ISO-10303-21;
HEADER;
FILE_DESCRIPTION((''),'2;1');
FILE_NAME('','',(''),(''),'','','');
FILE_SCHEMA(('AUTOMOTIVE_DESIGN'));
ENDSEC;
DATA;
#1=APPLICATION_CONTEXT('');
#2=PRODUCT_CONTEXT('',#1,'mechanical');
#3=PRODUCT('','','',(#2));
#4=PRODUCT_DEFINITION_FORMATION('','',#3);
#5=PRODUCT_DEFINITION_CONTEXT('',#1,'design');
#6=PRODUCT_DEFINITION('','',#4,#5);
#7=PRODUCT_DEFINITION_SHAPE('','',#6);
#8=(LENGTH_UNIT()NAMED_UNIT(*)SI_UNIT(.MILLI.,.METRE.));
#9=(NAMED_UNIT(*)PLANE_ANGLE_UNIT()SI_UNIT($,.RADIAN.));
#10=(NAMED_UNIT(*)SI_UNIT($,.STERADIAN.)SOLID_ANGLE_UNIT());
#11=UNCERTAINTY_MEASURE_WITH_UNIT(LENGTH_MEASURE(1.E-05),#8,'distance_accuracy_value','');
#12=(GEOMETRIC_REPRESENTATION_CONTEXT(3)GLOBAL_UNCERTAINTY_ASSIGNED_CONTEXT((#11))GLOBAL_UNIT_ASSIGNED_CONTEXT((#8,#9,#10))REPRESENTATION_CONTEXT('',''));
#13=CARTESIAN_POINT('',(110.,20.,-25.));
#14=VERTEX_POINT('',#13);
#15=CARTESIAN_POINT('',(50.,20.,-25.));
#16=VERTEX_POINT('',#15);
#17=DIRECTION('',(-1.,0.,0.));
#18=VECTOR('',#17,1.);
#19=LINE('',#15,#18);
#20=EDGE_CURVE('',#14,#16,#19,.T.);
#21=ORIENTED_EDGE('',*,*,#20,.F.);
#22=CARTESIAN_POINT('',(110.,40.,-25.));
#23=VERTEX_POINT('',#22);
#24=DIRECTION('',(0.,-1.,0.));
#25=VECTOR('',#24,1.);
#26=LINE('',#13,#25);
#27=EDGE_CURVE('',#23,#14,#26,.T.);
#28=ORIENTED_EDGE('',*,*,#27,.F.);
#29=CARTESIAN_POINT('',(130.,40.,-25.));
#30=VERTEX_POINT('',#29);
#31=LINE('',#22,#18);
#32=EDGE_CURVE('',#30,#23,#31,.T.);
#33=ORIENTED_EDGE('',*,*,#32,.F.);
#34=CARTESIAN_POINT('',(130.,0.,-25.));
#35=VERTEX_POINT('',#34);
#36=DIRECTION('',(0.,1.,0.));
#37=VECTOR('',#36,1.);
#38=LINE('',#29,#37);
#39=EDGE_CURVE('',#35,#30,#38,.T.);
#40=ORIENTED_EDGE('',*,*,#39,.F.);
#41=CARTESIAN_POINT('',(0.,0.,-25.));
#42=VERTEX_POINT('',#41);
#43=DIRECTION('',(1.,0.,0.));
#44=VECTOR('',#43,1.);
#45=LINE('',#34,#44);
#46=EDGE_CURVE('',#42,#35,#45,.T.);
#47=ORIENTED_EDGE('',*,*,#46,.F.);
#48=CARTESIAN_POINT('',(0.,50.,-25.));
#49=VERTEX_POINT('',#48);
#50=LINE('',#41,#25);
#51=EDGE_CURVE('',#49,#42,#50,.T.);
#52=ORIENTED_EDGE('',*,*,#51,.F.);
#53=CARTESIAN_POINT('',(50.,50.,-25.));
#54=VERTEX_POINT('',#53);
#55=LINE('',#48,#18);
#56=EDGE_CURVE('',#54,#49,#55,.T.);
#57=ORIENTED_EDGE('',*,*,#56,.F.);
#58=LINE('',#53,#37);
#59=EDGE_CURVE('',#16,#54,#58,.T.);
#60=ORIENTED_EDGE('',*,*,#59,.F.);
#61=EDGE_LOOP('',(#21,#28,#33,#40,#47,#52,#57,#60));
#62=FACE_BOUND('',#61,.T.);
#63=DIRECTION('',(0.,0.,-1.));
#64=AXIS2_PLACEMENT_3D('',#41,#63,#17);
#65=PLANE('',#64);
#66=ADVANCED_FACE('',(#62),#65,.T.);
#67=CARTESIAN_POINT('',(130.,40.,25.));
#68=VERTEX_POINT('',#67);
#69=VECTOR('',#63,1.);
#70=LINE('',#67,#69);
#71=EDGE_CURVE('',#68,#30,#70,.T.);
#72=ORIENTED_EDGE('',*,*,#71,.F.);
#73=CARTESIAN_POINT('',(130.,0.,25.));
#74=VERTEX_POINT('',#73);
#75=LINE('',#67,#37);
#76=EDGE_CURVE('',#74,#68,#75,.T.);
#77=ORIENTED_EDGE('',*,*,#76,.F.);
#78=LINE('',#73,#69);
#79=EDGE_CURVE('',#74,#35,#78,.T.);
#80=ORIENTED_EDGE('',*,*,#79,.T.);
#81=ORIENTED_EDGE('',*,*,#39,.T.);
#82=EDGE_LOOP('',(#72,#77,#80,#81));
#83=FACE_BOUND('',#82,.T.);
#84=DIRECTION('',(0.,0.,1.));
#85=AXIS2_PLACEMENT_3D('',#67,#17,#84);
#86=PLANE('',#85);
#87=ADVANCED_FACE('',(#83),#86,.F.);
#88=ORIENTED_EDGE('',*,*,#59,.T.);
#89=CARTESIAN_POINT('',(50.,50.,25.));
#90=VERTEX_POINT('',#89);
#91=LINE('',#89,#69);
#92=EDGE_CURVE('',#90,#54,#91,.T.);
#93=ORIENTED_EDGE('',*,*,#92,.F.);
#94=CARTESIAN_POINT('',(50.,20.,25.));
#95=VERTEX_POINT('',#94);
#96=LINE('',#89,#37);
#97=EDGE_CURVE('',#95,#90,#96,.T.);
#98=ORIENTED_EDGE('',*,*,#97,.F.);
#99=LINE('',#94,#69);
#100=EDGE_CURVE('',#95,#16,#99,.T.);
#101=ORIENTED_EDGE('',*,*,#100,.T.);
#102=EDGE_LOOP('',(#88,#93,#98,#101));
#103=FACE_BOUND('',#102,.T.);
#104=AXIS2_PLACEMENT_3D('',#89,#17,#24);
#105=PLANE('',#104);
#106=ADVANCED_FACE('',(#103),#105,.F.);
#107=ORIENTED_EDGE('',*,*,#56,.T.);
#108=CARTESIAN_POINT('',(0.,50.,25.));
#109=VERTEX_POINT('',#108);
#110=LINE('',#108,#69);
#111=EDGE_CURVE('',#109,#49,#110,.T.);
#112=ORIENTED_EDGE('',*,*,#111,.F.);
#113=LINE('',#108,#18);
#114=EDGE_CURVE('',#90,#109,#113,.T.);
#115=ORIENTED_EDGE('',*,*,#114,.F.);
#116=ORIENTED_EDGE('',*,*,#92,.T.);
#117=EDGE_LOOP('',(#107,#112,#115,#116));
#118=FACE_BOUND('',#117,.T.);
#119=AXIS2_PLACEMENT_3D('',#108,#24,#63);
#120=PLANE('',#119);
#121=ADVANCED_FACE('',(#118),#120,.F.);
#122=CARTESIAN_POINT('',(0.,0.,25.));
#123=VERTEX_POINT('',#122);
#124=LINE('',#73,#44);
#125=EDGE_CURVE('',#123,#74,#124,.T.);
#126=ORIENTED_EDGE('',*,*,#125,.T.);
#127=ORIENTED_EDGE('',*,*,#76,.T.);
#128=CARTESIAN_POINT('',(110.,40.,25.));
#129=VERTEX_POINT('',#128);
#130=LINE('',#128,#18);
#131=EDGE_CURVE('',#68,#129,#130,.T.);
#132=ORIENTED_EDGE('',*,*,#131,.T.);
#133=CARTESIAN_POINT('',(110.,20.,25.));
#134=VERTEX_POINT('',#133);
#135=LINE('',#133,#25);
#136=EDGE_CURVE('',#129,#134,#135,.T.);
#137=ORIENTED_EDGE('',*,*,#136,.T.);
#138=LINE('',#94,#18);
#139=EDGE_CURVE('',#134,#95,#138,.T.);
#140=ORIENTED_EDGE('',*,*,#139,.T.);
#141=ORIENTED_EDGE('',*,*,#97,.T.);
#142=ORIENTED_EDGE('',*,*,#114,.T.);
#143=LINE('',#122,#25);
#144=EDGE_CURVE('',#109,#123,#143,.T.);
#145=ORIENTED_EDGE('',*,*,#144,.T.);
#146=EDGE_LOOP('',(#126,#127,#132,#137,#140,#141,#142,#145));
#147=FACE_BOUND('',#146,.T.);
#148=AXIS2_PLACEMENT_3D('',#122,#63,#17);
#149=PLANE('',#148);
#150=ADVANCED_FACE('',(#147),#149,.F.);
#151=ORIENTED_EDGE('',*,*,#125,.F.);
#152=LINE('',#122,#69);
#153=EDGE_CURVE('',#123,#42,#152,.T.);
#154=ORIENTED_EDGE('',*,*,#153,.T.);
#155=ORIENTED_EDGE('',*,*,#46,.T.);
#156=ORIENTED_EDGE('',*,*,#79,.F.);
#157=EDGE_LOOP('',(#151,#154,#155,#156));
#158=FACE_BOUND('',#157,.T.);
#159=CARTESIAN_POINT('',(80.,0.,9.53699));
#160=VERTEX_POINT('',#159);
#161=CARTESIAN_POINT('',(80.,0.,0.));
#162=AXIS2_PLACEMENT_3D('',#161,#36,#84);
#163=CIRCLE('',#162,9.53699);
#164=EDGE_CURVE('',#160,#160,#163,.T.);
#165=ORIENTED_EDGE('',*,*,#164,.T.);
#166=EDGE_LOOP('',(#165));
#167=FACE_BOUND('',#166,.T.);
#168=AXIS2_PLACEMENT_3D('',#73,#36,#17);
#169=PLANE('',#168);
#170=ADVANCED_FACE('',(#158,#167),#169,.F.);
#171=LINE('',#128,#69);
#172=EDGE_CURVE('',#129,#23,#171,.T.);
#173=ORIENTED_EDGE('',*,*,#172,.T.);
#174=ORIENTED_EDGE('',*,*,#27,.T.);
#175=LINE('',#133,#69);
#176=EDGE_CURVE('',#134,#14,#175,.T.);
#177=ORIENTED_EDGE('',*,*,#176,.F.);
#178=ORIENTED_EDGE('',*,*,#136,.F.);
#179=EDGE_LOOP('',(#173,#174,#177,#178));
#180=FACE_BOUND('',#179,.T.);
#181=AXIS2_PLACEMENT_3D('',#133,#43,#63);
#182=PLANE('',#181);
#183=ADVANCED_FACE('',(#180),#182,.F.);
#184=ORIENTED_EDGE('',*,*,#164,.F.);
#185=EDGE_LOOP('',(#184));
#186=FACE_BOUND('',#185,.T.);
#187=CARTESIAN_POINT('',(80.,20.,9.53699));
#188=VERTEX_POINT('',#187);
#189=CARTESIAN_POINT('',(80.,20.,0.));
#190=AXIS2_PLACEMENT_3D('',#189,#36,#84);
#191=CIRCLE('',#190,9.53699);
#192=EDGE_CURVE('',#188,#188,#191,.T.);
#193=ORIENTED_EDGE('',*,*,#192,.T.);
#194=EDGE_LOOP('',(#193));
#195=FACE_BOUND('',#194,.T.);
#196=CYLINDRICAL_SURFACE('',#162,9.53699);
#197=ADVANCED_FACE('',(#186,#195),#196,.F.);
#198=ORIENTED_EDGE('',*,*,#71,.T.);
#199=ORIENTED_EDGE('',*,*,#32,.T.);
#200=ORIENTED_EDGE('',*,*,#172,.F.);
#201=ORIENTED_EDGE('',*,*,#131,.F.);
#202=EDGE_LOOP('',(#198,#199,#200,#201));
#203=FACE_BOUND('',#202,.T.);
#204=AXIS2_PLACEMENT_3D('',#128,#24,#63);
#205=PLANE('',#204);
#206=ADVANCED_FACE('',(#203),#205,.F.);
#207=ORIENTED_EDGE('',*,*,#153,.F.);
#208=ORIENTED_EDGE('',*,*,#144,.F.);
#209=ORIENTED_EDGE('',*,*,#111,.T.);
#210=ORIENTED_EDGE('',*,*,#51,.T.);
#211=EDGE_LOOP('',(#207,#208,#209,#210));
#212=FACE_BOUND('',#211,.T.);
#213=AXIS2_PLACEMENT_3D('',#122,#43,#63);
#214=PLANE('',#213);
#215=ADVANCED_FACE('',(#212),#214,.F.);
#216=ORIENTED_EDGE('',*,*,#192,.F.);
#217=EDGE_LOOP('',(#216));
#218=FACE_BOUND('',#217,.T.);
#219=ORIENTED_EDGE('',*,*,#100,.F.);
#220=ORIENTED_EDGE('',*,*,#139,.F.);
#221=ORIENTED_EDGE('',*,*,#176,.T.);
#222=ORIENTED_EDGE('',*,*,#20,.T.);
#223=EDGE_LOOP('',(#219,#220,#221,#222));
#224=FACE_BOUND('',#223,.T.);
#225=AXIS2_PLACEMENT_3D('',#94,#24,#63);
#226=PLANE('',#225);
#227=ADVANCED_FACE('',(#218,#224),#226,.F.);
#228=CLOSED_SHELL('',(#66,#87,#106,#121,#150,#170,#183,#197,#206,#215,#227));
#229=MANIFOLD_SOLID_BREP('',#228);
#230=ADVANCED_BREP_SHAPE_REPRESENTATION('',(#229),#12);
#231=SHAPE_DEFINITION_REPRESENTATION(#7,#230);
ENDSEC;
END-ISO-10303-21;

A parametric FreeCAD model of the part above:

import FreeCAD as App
import Part
import Sketcher
from FreeCAD import Vector
Q = App.Units.Quantity

doc = App.newDocument("Part")
body = doc.addObject("PartDesign::Body", "Body")

# Sketch on XY plane
sketch1 = body.newObject("Sketcher::SketchObject", "Sketch")
sketch1.AttachmentSupport = (doc.getObject("XY_Plane"), [""])
sketch1.MapMode = "FlatFace"
sketch1.addGeometry(Part.LineSegment(Vector(0, 50, 0), Vector(0, 0, 0)), False)
sketch1.addGeometry(Part.LineSegment(Vector(0, 0, 0), Vector(130, 0, 0)), False)
sketch1.addGeometry(Part.LineSegment(Vector(130, 0, 0), Vector(130, 40, 0)), False)
sketch1.addGeometry(Part.LineSegment(Vector(130, 40, 0), Vector(110, 40, 0)), False)
sketch1.addGeometry(Part.LineSegment(Vector(110, 40, 0), Vector(110, 20, 0)), False)
sketch1.addGeometry(Part.LineSegment(Vector(110, 20, 0), Vector(50, 20, 0)), False)
sketch1.addGeometry(Part.LineSegment(Vector(50, 20, 0), Vector(50, 50, 0)), False)
sketch1.addGeometry(Part.LineSegment(Vector(50, 50, 0), Vector(0, 50, 0)), False)
sketch1.addConstraint(Sketcher.Constraint("Coincident", 0, 2, 1, 1))
sketch1.addConstraint(Sketcher.Constraint("Coincident", 1, 2, 2, 1))
sketch1.addConstraint(Sketcher.Constraint("Coincident", 2, 2, 3, 1))
sketch1.addConstraint(Sketcher.Constraint("Coincident", 3, 2, 4, 1))
sketch1.addConstraint(Sketcher.Constraint("Coincident", 4, 2, 5, 1))
sketch1.addConstraint(Sketcher.Constraint("Coincident", 5, 2, 6, 1))
sketch1.addConstraint(Sketcher.Constraint("Coincident", 6, 2, 7, 1))
sketch1.addConstraint(Sketcher.Constraint("Coincident", 7, 2, 0, 1))
sketch1.addConstraint(Sketcher.Constraint("Vertical", 0))
sketch1.addConstraint(Sketcher.Constraint("Horizontal", 1))
sketch1.addConstraint(Sketcher.Constraint("Vertical", 2))
sketch1.addConstraint(Sketcher.Constraint("Horizontal", 3))
sketch1.addConstraint(Sketcher.Constraint("Vertical", 4))
sketch1.addConstraint(Sketcher.Constraint("Horizontal", 5))
sketch1.addConstraint(Sketcher.Constraint("Vertical", 6))
sketch1.addConstraint(Sketcher.Constraint("Horizontal", 7))
sketch1.addConstraint(Sketcher.Constraint("Coincident", 0, 2, -1, 1))
sketch1.addConstraint(Sketcher.Constraint("Equal", 7, 0))
sketch1.addConstraint(Sketcher.Constraint("Equal", 3, 4))
sketch1.addConstraint(Sketcher.Constraint("DistanceX", 1, 1, 1, 2, Q("130 mm")))
sketch1.addConstraint(Sketcher.Constraint("DistanceX", 3, 2, 3, 1, Q("20 mm")))
sketch1.addConstraint(Sketcher.Constraint("DistanceX", 5, 2, 5, 1, Q("60 mm")))
sketch1.addConstraint(Sketcher.Constraint("DistanceY", 2, 1, 2, 2, Q("40 mm")))
pad1 = body.newObject("PartDesign::Pad", "Pad")
pad1.Profile = sketch1
pad1.Length = 50
pad1.Midplane = True

# Sketch on XZ plane
sketch2 = body.newObject("Sketcher::SketchObject", "Sketch001")
sketch2.AttachmentSupport = (doc.getObject("XZ_Plane"), [""])
sketch2.MapMode = "FlatFace"
sketch2.AttachmentOffset = App.Placement(Vector(0, 0, -20), App.Rotation())
sketch2.addGeometry(Part.Circle(Vector(80, 0, 0), Vector(0, 0, 1), 9.53699), False)
sketch2.addConstraint(Sketcher.Constraint("PointOnObject", 0, 3, -1))
sketch2.addConstraint(Sketcher.Constraint("DistanceX", -1, 1, 0, 3, Q("80 mm")))
sketch2.addConstraint(Sketcher.Constraint("Diameter", 0, Q("19.07398 mm")))
pocket1 = body.newObject("PartDesign::Pocket", "Pocket")
pocket1.Profile = sketch2
pocket1.Type = "ThroughAll"
pocket1.Reversed = True

doc.recompute()
